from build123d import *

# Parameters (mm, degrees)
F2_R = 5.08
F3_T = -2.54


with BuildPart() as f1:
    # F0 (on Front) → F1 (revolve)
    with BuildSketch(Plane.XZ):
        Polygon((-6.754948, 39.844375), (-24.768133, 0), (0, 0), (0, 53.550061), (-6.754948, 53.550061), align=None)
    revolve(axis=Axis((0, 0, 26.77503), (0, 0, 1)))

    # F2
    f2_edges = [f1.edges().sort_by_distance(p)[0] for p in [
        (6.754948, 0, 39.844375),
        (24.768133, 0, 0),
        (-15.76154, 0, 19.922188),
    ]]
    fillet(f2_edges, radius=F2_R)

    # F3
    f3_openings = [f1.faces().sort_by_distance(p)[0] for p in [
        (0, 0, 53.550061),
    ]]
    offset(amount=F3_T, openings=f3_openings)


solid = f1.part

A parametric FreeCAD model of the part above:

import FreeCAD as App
import Part
import Sketcher
Q = App.Units.Quantity


def edges_at(feature, points):
    """Names of the edges that pass closest to the given points."""
    edges = feature.Shape.Edges
    near = lambda p: min(range(len(edges)), key=lambda i: edges[i].distToShape(Part.Vertex(*p))[0])
    return sorted({f"Edge{near(p) + 1}" for p in points})


def faces_at(feature, points):
    """Names of the faces that lie closest to the given points."""
    faces = feature.Shape.Faces
    near = lambda p: min(range(len(faces)), key=lambda i: faces[i].distToShape(Part.Vertex(*p))[0])
    return sorted({f"Face{near(p) + 1}" for p in points})


def add_polygon(sketch, points):
    """Adds a closed chain of lines whose ends are joined by coincident constraints."""
    first, n = sketch.GeometryCount, len(points)
    for a, b in zip(points, points[1:] + points[:1]):
        sketch.addGeometry(Part.LineSegment(App.Vector(*a, 0), App.Vector(*b, 0)), False)
    for i in range(n):
        sketch.addConstraint(Sketcher.Constraint("Coincident", first + i, 2, first + (i + 1) % n, 1))

doc = App.newDocument("Part")
body = doc.addObject("PartDesign::Body", "Body")

# Sketch on XZ plane
sketch1 = body.newObject("Sketcher::SketchObject", "Sketch")
sketch1.AttachmentSupport = (doc.getObject("XZ_Plane"), [""])
sketch1.MapMode = "FlatFace"
add_polygon(sketch1, [(-7, 40), (-25, 0), (0, 0), (0, 54), (-7, 54)])  # lines 0-4
sketch1.addConstraint(Sketcher.Constraint("Horizontal", 1))
sketch1.addConstraint(Sketcher.Constraint("Vertical", 2))
sketch1.addConstraint(Sketcher.Constraint("Horizontal", 3))
sketch1.addConstraint(Sketcher.Constraint("Vertical", 4))
sketch1.addConstraint(Sketcher.Constraint("Coincident", 1, 2, -1, 1))
sketch1.addConstraint(Sketcher.Constraint("DistanceY", 2, 1, 2, 2, Q("53.550061 mm")))
sketch1.addConstraint(Sketcher.Constraint("DistanceX", 1, 1, 1, 2, Q("24.768133 mm")))
sketch1.addConstraint(Sketcher.Constraint("DistanceX", 3, 2, 3, 1, Q("6.754948 mm")))
sketch1.addConstraint(Sketcher.Constraint("DistanceY", 4, 2, 4, 1, Q("13.705686 mm")))
revolution = body.newObject("PartDesign::Revolution", "Revolution")
revolution.Profile = sketch1
revolution.ReferenceAxis = (sketch1, ["V_Axis"])
revolution.Angle = 360
doc.recompute()

fillet = body.newObject("PartDesign::Fillet", "Fillet")
fillet.Base = (revolution, edges_at(revolution, [(6.755, 0, 39.844), (24.768, 0, 0), (-15.762, 0, 19.922)]))
fillet.Radius = Q("0.2 in")
doc.recompute()

thickness = body.newObject("PartDesign::Thickness", "Thickness")
thickness.Base = (fillet, faces_at(fillet, [(0, 0, 53.55)]))
thickness.Value = Q("0.1 in")
thickness.Reversed = True
thickness.Join = "Arc"

doc.recompute()
